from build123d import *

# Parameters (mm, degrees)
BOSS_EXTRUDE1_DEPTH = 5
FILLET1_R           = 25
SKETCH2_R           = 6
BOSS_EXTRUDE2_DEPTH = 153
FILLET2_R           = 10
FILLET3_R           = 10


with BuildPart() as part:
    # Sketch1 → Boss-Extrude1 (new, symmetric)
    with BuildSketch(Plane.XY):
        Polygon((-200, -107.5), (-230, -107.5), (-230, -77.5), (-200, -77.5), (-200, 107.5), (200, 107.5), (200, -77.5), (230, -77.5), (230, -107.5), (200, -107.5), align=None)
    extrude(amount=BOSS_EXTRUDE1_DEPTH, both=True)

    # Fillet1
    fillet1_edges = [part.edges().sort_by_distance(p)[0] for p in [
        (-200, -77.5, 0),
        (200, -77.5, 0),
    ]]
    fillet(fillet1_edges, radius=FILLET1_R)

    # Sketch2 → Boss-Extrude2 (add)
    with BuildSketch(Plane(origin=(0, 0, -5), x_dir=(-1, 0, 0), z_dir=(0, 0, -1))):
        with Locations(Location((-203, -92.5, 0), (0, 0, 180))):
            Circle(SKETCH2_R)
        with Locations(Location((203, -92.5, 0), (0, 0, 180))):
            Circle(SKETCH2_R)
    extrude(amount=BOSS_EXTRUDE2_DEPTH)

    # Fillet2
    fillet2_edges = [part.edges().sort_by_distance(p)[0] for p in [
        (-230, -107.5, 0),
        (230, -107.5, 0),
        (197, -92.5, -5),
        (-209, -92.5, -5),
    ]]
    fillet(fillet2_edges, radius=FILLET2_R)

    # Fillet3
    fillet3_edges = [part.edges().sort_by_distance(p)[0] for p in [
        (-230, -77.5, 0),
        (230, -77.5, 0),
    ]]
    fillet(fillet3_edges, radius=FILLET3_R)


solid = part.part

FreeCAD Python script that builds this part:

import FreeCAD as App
import Part
import Sketcher
from FreeCAD import Vector


def edges_at(feature, points):
    """Names of the edges that pass closest to the given points."""
    edges = feature.Shape.Edges
    near = lambda p: min(range(len(edges)), key=lambda i: edges[i].distToShape(Part.Vertex(*p))[0])
    return sorted({f"Edge{near(p) + 1}" for p in points})


def add_polygon(sketch, points):
    """Adds a closed chain of lines whose ends are joined by coincident constraints."""
    first, n = sketch.GeometryCount, len(points)
    for a, b in zip(points, points[1:] + points[:1]):
        sketch.addGeometry(Part.LineSegment(App.Vector(*a, 0), App.Vector(*b, 0)), False)
    for i in range(n):
        sketch.addConstraint(Sketcher.Constraint("Coincident", first + i, 2, first + (i + 1) % n, 1))

doc = App.newDocument("Part")
params = doc.addObject("Spreadsheet::Sheet", "Params")
for row, (alias, value) in enumerate([
    ("sketch1_width", "460 mm"),
    ("sketch1_width2", "30 mm"),
    ("sketch1_height", "185 mm"),
    ("pad1_length", "10 mm"),
    ("fillet_radius", "25 mm"),
    ("sketch2_diameter", "12 mm"),
    ("pad2_length", "153 mm"),
    ("fillet2_radius", "10 mm"),
    ("fillet3_radius", "10 mm"),
], start=1):
    params.set(f"A{row}", alias)
    params.set(f"B{row}", "=" + value)
    params.setAlias(f"B{row}", alias)

body = doc.addObject("PartDesign::Body", "Body")

# Sketch on XY plane
sketch1 = doc.addObject("Sketcher::SketchObject", "Sketch")
body.addObject(sketch1)
sketch1.AttachmentSupport = (doc.XY_Plane, [""])
sketch1.MapMode = "FlatFace"
add_polygon(sketch1, [(-230, -107.5), (230, -107.5), (230, -77.5), (200, -77.5), (200, 107.5), (-200, 107.5), (-200, -77.5), (-230, -77.5)])  # lines 0-7
sketch1.addConstraint([
    Sketcher.Constraint("Horizontal", 0),
    Sketcher.Constraint("Vertical", 1),
    Sketcher.Constraint("Horizontal", 2),
    Sketcher.Constraint("Vertical", 3),
    Sketcher.Constraint("Horizontal", 4),
    Sketcher.Constraint("Vertical", 5),
    Sketcher.Constraint("Horizontal", 6),
    Sketcher.Constraint("Vertical", 7),
    Sketcher.Constraint("Symmetric", 2, 2, 5, 2, -2),
    Sketcher.Constraint("Equal", 2, 6),
    Sketcher.Constraint("Equal", 6, 1),
    Sketcher.Constraint("DistanceX", 0, 1, 0, 2, 460.0),
    Sketcher.Constraint("DistanceX", 2, 2, 2, 1, 30.0),
    Sketcher.Constraint("DistanceY", 3, 1, 3, 2, 185.0),
    Sketcher.Constraint("DistanceY", 0, 2, -1, 1, 107.5),
])
sketch1.setExpression("Constraints[19]", "Params.sketch1_width")
sketch1.setExpression("Constraints[20]", "Params.sketch1_width2")
sketch1.setExpression("Constraints[21]", "Params.sketch1_height")
pad1 = doc.addObject("PartDesign::Pad", "Pad")
body.addObject(pad1)
pad1.Profile = sketch1
pad1.setExpression("Length", "Params.pad1_length")
pad1.Midplane = True
doc.recompute()

fillet = doc.addObject("PartDesign::Fillet", "Fillet")
body.addObject(fillet)
fillet.Base = (pad1, edges_at(pad1, [(-200, -77.5, 0), (200, -77.5, 0)]))
fillet.setExpression("Radius", "Params.fillet_radius")

# Sketch on XY plane
sketch2 = doc.addObject("Sketcher::SketchObject", "Sketch001")
body.addObject(sketch2)
sketch2.AttachmentSupport = (doc.XY_Plane, [""])
sketch2.MapMode = "FlatFace"
sketch2.AttachmentOffset = App.Placement(Vector(0, 0, -5), App.Rotation())
sketch2.addGeometry([
    Part.Circle(Vector(203, -92.5, 0), Vector(0, 0, 1), 6),
    Part.Circle(Vector(-203, -92.5, 0), Vector(0, 0, 1), 6),
], False)
sketch2.addConstraint([
    Sketcher.Constraint("Equal", 0, 1),
    Sketcher.Constraint("Symmetric", 0, 3, 1, 3, -2),
    Sketcher.Constraint("Diameter", 0, 12.0),
    Sketcher.Constraint("DistanceX", -1, 1, 0, 3, 203.0),
    Sketcher.Constraint("DistanceY", 0, 3, -1, 1, 92.5),
])
sketch2.setExpression("Constraints[2]", "Params.sketch2_diameter")
pad2 = doc.addObject("PartDesign::Pad", "Pad001")
body.addObject(pad2)
pad2.Profile = sketch2
pad2.setExpression("Length", "Params.pad2_length")
pad2.Reversed = True
doc.recompute()

fillet2 = doc.addObject("PartDesign::Fillet", "Fillet001")
body.addObject(fillet2)
fillet2.Base = (pad2, edges_at(pad2, [
    (-230, -107.5, 0),
    (230, -107.5, 0),
    (197, -92.5, -5),
    (-209, -92.5, -5),
]))
fillet2.setExpression("Radius", "Params.fillet2_radius")
doc.recompute()

fillet3 = doc.addObject("PartDesign::Fillet", "Fillet002")
body.addObject(fillet3)
fillet3.Base = (fillet2, edges_at(fillet2, [(-230, -77.5, 0), (230, -77.5, 0)]))
fillet3.setExpression("Radius", "Params.fillet3_radius")

doc.recompute()
